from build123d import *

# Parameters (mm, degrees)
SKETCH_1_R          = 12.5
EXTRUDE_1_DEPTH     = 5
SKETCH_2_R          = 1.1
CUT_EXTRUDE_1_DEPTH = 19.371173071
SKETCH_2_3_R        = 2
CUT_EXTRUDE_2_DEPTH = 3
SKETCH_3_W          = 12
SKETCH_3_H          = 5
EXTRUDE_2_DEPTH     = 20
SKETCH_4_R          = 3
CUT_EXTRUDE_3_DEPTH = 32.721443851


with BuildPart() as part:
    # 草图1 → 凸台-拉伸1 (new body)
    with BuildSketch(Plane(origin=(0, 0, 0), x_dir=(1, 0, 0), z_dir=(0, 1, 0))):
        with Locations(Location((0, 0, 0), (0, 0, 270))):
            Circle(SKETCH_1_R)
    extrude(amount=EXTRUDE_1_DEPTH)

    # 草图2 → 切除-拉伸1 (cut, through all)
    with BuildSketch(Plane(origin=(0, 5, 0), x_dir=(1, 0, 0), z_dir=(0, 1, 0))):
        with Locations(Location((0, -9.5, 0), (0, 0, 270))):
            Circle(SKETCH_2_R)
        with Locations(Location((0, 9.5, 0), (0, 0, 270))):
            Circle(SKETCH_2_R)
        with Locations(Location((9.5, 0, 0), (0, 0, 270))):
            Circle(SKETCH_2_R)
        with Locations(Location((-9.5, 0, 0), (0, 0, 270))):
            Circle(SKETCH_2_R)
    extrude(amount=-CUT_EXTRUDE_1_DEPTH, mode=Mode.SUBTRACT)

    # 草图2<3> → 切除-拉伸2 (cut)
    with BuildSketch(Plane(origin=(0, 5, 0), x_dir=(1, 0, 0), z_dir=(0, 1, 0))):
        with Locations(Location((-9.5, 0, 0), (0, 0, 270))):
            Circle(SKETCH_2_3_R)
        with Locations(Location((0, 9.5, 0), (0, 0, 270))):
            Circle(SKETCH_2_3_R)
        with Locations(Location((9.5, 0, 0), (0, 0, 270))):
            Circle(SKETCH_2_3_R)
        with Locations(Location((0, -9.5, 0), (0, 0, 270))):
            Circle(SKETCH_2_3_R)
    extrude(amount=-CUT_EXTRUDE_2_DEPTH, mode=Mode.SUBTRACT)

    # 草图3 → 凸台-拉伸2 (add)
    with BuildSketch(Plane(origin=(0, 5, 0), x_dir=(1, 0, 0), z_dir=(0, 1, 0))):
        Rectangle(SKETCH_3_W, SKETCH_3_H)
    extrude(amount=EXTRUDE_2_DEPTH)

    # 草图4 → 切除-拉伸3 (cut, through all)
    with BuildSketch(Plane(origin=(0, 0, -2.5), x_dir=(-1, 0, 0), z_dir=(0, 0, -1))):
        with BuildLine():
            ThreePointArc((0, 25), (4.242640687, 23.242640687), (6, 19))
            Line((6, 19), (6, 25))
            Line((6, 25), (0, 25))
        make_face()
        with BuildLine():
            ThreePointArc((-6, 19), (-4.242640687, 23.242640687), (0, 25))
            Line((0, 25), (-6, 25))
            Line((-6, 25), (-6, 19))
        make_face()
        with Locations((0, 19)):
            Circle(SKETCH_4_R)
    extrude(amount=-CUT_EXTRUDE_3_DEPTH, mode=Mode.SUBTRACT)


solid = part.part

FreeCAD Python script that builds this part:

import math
import FreeCAD as App
import Part
import Sketcher


def add_polygon(sketch, points):
    """Adds a closed chain of lines whose ends are joined by coincident constraints."""
    first, n = sketch.GeometryCount, len(points)
    for a, b in zip(points, points[1:] + points[:1]):
        sketch.addGeometry(Part.LineSegment(App.Vector(*a, 0), App.Vector(*b, 0)), False)
    for i in range(n):
        sketch.addConstraint(Sketcher.Constraint("Coincident", first + i, 2, first + (i + 1) % n, 1))

doc = App.newDocument("Part")
body = doc.addObject("PartDesign::Body", "Body")

sketch1 = body.newObject("Sketcher::SketchObject", "Sketch")
sketch1.AttachmentSupport = (doc.getObject("XZ_Plane"), [""])
sketch1.MapMode = "FlatFace"
sketch1.addGeometry(Part.Circle(App.Vector(0, 0, 0), App.Vector(0, 0, 1), 12), False)
sketch1.addConstraint([
    Sketcher.Constraint("Coincident", 0, 3, -1, 1),
    Sketcher.Constraint("Diameter", 0, 25.0),
])
pad1 = body.newObject("PartDesign::Pad", "Pad")
pad1.Profile = sketch1
pad1.Length = 5
pad1.Reversed = True

sketch2 = body.newObject("Sketcher::SketchObject", "Sketch001")
sketch2.AttachmentSupport = (doc.getObject("XZ_Plane"), [""])
sketch2.MapMode = "FlatFace"
sketch2.AttachmentOffset = App.Placement(App.Vector(0, 0, -5), App.Rotation())
sketch2.addGeometry([
    Part.Circle(App.Vector(0, 9.5, 0), App.Vector(0, 0, 1), 1.1),
    Part.Circle(App.Vector(0, -9.5, 0), App.Vector(0, 0, 1), 1.1),
    Part.Circle(App.Vector(9.5, 0, 0), App.Vector(0, 0, 1), 1.1),
    Part.Circle(App.Vector(-9.5, 0, 0), App.Vector(0, 0, 1), 1.1),
], False)
sketch2.addConstraint([
    Sketcher.Constraint("Equal", 0, 1),
    Sketcher.Constraint("Equal", 1, 2),
    Sketcher.Constraint("Equal", 2, 3),
    Sketcher.Constraint("Symmetric", 0, 3, 1, 3, -1, 1),
    Sketcher.Constraint("Symmetric", 2, 3, 3, 3, -1, 1),
    Sketcher.Constraint("PointOnObject", 0, 3, -2),
    Sketcher.Constraint("PointOnObject", 2, 3, -1),
    Sketcher.Constraint("Diameter", 0, 2.2),
    Sketcher.Constraint("DistanceY", 1, 3, 0, 3, 19.0),
    Sketcher.Constraint("DistanceX", 3, 3, 2, 3, 19.0),
])
pocket1 = body.newObject("PartDesign::Pocket", "Pocket")
pocket1.Profile = sketch2
pocket1.Type = "ThroughAll"
pocket1.Reversed = True

sketch3 = body.newObject("Sketcher::SketchObject", "Sketch002")
sketch3.AttachmentSupport = (doc.getObject("XZ_Plane"), [""])
sketch3.MapMode = "FlatFace"
sketch3.AttachmentOffset = App.Placement(App.Vector(0, 0, -5), App.Rotation())
sketch3.addGeometry([
    Part.Circle(App.Vector(-9.5, 0, 0), App.Vector(0, 0, 1), 2),
    Part.Circle(App.Vector(0, -9.5, 0), App.Vector(0, 0, 1), 2),
    Part.Circle(App.Vector(9.5, 0, 0), App.Vector(0, 0, 1), 2),
    Part.Circle(App.Vector(0, 9.5, 0), App.Vector(0, 0, 1), 2),
], False)
sketch3.addConstraint([
    Sketcher.Constraint("Equal", 0, 1),
    Sketcher.Constraint("Equal", 1, 2),
    Sketcher.Constraint("Equal", 2, 3),
    Sketcher.Constraint("Symmetric", 0, 3, 2, 3, -1, 1),
    Sketcher.Constraint("Symmetric", 1, 3, 3, 3, -1, 1),
    Sketcher.Constraint("PointOnObject", 0, 3, -1),
    Sketcher.Constraint("PointOnObject", 1, 3, -2),
    Sketcher.Constraint("Diameter", 0, 4.0),
    Sketcher.Constraint("DistanceX", 0, 3, 2, 3, 19.0),
    Sketcher.Constraint("DistanceY", 1, 3, 3, 3, 19.0),
])
pocket2 = body.newObject("PartDesign::Pocket", "Pocket001")
pocket2.Profile = sketch3
pocket2.Length = 3
pocket2.Reversed = True

sketch4 = body.newObject("Sketcher::SketchObject", "Sketch003")
sketch4.AttachmentSupport = (doc.getObject("XZ_Plane"), [""])
sketch4.MapMode = "FlatFace"
sketch4.AttachmentOffset = App.Placement(App.Vector(0, 0, -5), App.Rotation())
add_polygon(sketch4, [(-6, -2), (-6, 2), (6, 2), (6, -2)])
sketch4.addConstraint([
    Sketcher.Constraint("Vertical", 0),
    Sketcher.Constraint("Horizontal", 1),
    Sketcher.Constraint("Vertical", 2),
    Sketcher.Constraint("Horizontal", 3),
    Sketcher.Constraint("Symmetric", 0, 2, 2, 2, -1, 1),
    Sketcher.Constraint("DistanceX", 1, 1, 1, 2, 12.0),
    Sketcher.Constraint("DistanceY", 0, 1, 0, 2, 5.0),
])
pad2 = body.newObject("PartDesign::Pad", "Pad001")
pad2.Profile = sketch4
pad2.Length = 20
pad2.Reversed = True

sketch5 = body.newObject("Sketcher::SketchObject", "Sketch004")
sketch5.AttachmentSupport = (doc.getObject("XY_Plane"), [""])
sketch5.MapMode = "FlatFace"
sketch5.AttachmentOffset = App.Placement(App.Vector(0, 0, -2.5), App.Rotation())
sketch5.addGeometry([
    Part.ArcOfCircle(Part.Circle(App.Vector(0, 19, 0), App.Vector(0, 0, 1), 6), math.radians(90), math.radians(180)),
    Part.LineSegment(App.Vector(-6, 19, 0), App.Vector(-6, 25, 0)),
    Part.LineSegment(App.Vector(-6, 25, 0), App.Vector(0, 25, 0)),
    Part.ArcOfCircle(Part.Circle(App.Vector(0, 19, 0), App.Vector(0, 0, 1), 6), math.radians(0), math.radians(90)),
    Part.LineSegment(App.Vector(0, 25, 0), App.Vector(6, 25, 0)),
    Part.LineSegment(App.Vector(6, 25, 0), App.Vector(6, 19, 0)),
    Part.Circle(App.Vector(0, 19, 0), App.Vector(0, 0, 1), 3),
], False)
sketch5.addConstraint([
    Sketcher.Constraint("Tangent", 0, 2, 1, 1),
    Sketcher.Constraint("Coincident", 1, 2, 2, 1),
    Sketcher.Constraint("Tangent", 2, 2, 0, 1),
    Sketcher.Constraint("Tangent", 3, 2, 4, 1),
    Sketcher.Constraint("Coincident", 4, 2, 5, 1),
    Sketcher.Constraint("Tangent", 5, 2, 3, 1),
    Sketcher.Constraint("Vertical", 1),
    Sketcher.Constraint("Horizontal", 2),
    Sketcher.Constraint("Horizontal", 4),
    Sketcher.Constraint("Vertical", 5),
    Sketcher.Constraint("Coincident", 3, 3, 0, 3),
    Sketcher.Constraint("Coincident", 6, 3, 0, 3),
    Sketcher.Constraint("Equal", 0, 3),
    Sketcher.Constraint("PointOnObject", 0, 3, -2),
    Sketcher.Constraint("Diameter", 6, 6.0),
    Sketcher.Constraint("Radius", 0, 6.0),
    Sketcher.Constraint("DistanceY", -1, 1, 0, 3, 19.0),
])
pocket3 = body.newObject("PartDesign::Pocket", "Pocket002")
pocket3.Profile = sketch5
pocket3.Type = "ThroughAll"
pocket3.Reversed = True

doc.recompute()
